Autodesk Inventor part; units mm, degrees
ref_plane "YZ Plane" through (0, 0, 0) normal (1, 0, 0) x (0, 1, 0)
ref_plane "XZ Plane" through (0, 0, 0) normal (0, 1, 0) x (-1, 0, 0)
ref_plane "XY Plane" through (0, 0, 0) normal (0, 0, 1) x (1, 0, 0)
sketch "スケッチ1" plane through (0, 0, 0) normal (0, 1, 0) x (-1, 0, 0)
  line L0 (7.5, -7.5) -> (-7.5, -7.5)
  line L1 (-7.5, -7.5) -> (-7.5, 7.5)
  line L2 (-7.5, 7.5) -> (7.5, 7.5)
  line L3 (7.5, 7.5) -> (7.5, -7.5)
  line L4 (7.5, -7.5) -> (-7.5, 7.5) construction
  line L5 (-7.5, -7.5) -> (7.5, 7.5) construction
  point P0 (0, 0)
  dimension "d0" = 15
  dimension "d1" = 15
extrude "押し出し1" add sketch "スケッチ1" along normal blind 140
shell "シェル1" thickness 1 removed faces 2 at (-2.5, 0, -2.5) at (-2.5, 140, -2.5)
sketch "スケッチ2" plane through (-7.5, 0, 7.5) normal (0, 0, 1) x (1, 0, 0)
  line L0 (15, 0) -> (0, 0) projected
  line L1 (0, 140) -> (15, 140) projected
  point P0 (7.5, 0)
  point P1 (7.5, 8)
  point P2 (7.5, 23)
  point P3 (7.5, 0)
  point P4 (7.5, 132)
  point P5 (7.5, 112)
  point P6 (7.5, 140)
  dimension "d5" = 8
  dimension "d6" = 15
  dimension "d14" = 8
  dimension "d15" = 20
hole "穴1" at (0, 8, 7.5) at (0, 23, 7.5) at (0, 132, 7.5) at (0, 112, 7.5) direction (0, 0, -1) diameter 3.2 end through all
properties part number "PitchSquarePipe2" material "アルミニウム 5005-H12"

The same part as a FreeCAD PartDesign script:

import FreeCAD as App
import Part
import Sketcher
from FreeCAD import Vector


def faces_at(feature, points):
    """Names of the faces that lie closest to the given points."""
    faces = feature.Shape.Faces
    near = lambda p: min(range(len(faces)), key=lambda i: faces[i].distToShape(Part.Vertex(*p))[0])
    return sorted({f"Face{near(p) + 1}" for p in points})


def add_polygon(sketch, points):
    """Adds a closed chain of lines whose ends are joined by coincident constraints."""
    first, n = sketch.GeometryCount, len(points)
    for a, b in zip(points, points[1:] + points[:1]):
        sketch.addGeometry(Part.LineSegment(App.Vector(*a, 0), App.Vector(*b, 0)), False)
    for i in range(n):
        sketch.addConstraint(Sketcher.Constraint("Coincident", first + i, 2, first + (i + 1) % n, 1))

doc = App.newDocument("Part")
params = doc.addObject("Spreadsheet::Sheet", "Params")
for row, (alias, value) in enumerate([
    ("sketch1_width", "15 mm"),
    ("pad1_length", "140 mm"),
    ("thickness_wall", "1 mm"),
    ("sketch2_diameter", "3.2 mm"),
    ("hole_diameter", "3.2 mm"),
], start=1):
    params.set(f"A{row}", alias)
    params.set(f"B{row}", "=" + value)
    params.setAlias(f"B{row}", alias)

body = doc.addObject("PartDesign::Body", "Body")

# Sketch on XZ plane
sketch1 = body.newObject("Sketcher::SketchObject", "Sketch")
sketch1.AttachmentSupport = (doc.getObject("XZ_Plane"), [""])
sketch1.MapMode = "FlatFace"
add_polygon(sketch1, [(8, -8), (-8, -8), (-8, 8), (8, 8)])  # lines 0-3
sketch1.addConstraint(Sketcher.Constraint("Horizontal", 0))
sketch1.addConstraint(Sketcher.Constraint("Vertical", 1))
sketch1.addConstraint(Sketcher.Constraint("Horizontal", 2))
sketch1.addConstraint(Sketcher.Constraint("Vertical", 3))
sketch1.addConstraint(Sketcher.Constraint("Symmetric", 0, 2, 2, 2, -1, 1))
sketch1.addConstraint(Sketcher.Constraint("Equal", 2, 1))
sketch1.addConstraint(Sketcher.Constraint("DistanceX", 0, 2, 0, 1, 15.0))
sketch1.setExpression("Constraints[10]", "Params.sketch1_width")
pad1 = body.newObject("PartDesign::Pad", "Pad")
pad1.Profile = sketch1
pad1.setExpression("Length", "Params.pad1_length")
pad1.Reversed = True
doc.recompute()

thickness = body.newObject("PartDesign::Thickness", "Thickness")
thickness.Base = (pad1, faces_at(pad1, [(-2.5, 0, -2.5), (-2.5, 140, -2.5)]))
thickness.setExpression("Value", "Params.thickness_wall")
thickness.Reversed = True
thickness.Join = "Intersection"

# Sketch on XY plane
sketch2 = body.newObject("Sketcher::SketchObject", "Sketch001")
sketch2.AttachmentSupport = (doc.getObject("XY_Plane"), [""])
sketch2.MapMode = "FlatFace"
sketch2.AttachmentOffset = App.Placement(Vector(0, 0, 7.5), App.Rotation())
sketch2.addGeometry(Part.Circle(Vector(0, 8, 0), Vector(0, 0, 1), 1.6), False)
sketch2.addGeometry(Part.Circle(Vector(0, 23, 0), Vector(0, 0, 1), 1.6), False)
sketch2.addGeometry(Part.Circle(Vector(0, 132, 0), Vector(0, 0, 1), 1.6), False)
sketch2.addGeometry(Part.Circle(Vector(0, 112, 0), Vector(0, 0, 1), 1.6), False)
sketch2.addConstraint(Sketcher.Constraint("Equal", 0, 1))
sketch2.addConstraint(Sketcher.Constraint("Equal", 1, 2))
sketch2.addConstraint(Sketcher.Constraint("Equal", 2, 3))
sketch2.addConstraint(Sketcher.Constraint("PointOnObject", 0, 3, -2))
sketch2.addConstraint(Sketcher.Constraint("PointOnObject", 1, 3, -2))
sketch2.addConstraint(Sketcher.Constraint("PointOnObject", 2, 3, -2))
sketch2.addConstraint(Sketcher.Constraint("PointOnObject", 3, 3, -2))
sketch2.addConstraint(Sketcher.Constraint("Diameter", 0, 3.2))
sketch2.addConstraint(Sketcher.Constraint("DistanceY", -1, 1, 0, 3, 8.0))
sketch2.addConstraint(Sketcher.Constraint("DistanceY", -1, 1, 1, 3, 23.0))
sketch2.addConstraint(Sketcher.Constraint("DistanceY", -1, 1, 2, 3, 132.0))
sketch2.addConstraint(Sketcher.Constraint("DistanceY", -1, 1, 3, 3, 112.0))
sketch2.setExpression("Constraints[7]", "Params.sketch2_diameter")
doc.recompute()
hole = body.newObject("PartDesign::Hole", "Hole")
hole.Profile = sketch2
hole.ThreadType = "None"
hole.setExpression("Diameter", "Params.hole_diameter")
hole.DepthType = "ThroughAll"

doc.recompute()
